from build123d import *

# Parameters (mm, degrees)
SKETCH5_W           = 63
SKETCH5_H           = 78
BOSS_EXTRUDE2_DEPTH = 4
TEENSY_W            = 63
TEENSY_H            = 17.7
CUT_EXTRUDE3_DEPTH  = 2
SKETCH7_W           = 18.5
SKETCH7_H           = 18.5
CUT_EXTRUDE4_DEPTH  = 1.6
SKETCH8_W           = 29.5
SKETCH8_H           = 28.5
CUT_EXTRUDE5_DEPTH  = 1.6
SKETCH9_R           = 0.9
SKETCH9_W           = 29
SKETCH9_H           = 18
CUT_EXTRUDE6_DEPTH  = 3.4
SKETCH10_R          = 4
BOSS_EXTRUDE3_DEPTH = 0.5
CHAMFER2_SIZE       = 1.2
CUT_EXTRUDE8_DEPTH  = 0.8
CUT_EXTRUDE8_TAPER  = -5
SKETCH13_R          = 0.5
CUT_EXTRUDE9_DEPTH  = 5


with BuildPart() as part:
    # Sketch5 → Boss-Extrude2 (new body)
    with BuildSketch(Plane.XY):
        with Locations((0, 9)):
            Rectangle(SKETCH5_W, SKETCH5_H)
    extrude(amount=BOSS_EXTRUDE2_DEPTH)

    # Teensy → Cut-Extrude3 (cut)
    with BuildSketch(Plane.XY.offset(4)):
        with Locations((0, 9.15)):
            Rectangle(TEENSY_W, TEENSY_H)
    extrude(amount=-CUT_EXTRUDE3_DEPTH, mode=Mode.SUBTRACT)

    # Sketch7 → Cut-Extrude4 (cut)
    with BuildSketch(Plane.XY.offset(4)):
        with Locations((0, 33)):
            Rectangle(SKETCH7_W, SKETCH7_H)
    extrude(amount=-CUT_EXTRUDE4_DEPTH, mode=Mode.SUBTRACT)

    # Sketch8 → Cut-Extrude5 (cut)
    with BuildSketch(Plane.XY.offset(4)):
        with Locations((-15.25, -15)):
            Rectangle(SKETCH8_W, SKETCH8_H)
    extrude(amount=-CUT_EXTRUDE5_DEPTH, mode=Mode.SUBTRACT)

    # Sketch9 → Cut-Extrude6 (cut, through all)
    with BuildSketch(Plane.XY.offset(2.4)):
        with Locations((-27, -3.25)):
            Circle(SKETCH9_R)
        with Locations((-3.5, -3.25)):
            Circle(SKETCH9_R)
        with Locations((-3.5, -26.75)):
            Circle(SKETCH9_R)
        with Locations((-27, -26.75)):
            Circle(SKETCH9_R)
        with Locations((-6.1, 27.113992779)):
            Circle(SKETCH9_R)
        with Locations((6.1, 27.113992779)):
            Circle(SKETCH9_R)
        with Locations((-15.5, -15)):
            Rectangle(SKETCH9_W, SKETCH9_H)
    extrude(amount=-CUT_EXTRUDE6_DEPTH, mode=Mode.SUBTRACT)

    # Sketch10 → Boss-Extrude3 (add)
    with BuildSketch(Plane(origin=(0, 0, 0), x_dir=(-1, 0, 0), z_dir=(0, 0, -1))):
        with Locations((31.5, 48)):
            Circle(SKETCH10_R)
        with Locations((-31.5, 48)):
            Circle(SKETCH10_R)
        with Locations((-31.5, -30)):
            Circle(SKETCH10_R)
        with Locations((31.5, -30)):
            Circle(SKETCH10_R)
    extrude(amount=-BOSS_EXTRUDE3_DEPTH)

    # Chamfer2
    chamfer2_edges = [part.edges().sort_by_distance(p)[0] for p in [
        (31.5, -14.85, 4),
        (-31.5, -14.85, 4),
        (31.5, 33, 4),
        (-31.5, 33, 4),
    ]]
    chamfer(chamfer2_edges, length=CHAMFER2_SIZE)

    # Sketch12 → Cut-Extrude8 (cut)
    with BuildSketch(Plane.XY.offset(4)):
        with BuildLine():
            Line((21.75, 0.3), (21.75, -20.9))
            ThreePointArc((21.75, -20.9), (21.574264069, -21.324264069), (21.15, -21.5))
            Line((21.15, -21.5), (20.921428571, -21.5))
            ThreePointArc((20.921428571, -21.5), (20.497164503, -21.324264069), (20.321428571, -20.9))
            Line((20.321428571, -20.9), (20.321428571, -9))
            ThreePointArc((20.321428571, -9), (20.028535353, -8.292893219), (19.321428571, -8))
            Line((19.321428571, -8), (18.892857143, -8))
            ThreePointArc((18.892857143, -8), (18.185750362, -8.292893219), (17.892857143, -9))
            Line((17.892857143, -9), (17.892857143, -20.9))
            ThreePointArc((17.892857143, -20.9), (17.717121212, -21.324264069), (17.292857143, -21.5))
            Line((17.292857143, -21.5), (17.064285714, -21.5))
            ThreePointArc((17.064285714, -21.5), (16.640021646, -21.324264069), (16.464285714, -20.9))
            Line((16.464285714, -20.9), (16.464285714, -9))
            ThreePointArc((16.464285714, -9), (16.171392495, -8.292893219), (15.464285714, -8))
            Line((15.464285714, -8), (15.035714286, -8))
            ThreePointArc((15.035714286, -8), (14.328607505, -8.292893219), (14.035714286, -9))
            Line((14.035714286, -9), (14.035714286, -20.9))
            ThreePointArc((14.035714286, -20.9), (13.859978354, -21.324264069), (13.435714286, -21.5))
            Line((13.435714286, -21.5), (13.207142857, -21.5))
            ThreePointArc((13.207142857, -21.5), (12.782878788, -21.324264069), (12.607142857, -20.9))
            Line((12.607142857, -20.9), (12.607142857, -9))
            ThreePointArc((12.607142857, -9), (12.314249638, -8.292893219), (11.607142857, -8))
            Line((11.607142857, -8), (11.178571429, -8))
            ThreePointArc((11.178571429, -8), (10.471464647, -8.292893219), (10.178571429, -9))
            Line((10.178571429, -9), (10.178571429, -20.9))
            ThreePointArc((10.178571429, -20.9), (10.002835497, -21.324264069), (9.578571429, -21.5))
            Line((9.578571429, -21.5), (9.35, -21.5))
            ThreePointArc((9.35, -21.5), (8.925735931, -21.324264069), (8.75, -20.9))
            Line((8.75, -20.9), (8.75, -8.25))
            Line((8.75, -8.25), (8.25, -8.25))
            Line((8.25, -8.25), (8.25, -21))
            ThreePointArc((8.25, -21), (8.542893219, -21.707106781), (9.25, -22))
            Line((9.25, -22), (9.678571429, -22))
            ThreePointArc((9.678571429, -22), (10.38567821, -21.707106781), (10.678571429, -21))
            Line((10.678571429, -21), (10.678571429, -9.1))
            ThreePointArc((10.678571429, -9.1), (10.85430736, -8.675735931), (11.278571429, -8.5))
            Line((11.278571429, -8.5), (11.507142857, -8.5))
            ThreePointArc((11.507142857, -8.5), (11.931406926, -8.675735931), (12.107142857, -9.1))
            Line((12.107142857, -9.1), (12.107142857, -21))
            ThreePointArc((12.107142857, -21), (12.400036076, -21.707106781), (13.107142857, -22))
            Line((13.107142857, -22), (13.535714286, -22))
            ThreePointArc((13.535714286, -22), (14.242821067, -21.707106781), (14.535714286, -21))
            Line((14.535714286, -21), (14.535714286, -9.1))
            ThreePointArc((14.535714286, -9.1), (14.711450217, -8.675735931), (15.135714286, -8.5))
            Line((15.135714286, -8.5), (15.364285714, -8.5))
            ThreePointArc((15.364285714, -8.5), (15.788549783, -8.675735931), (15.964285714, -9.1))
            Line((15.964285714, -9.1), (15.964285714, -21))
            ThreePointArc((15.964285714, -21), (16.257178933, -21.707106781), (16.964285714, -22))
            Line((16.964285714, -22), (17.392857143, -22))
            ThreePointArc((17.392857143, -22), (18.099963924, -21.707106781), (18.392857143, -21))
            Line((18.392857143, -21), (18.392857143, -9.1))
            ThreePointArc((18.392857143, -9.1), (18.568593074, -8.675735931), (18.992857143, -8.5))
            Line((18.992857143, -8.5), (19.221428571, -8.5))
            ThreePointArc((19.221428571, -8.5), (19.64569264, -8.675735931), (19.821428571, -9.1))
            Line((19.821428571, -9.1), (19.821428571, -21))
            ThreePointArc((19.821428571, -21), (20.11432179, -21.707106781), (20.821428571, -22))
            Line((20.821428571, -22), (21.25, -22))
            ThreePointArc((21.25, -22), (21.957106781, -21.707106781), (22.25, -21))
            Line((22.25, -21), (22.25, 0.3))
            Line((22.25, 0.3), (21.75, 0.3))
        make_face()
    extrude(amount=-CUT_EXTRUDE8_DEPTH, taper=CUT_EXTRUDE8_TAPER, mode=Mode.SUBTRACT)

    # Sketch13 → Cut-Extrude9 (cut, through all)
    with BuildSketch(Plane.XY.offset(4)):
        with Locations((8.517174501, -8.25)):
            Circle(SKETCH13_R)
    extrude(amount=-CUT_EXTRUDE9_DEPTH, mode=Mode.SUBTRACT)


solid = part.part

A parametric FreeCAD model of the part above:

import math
import FreeCAD as App
import Part
import Sketcher

V = App.Vector


def edges_at(feature, points):
    """Names of the edges that pass closest to the given points."""
    edges = feature.Shape.Edges
    near = lambda p: min(range(len(edges)), key=lambda i: edges[i].distToShape(Part.Vertex(*p))[0])
    return sorted({f"Edge{near(p) + 1}" for p in points})


def add_polygon(sketch, points):
    """Adds a closed chain of lines whose ends are joined by coincident constraints."""
    first, n = sketch.GeometryCount, len(points)
    for a, b in zip(points, points[1:] + points[:1]):
        sketch.addGeometry(Part.LineSegment(App.Vector(*a, 0), App.Vector(*b, 0)), False)
    for i in range(n):
        sketch.addConstraint(Sketcher.Constraint("Coincident", first + i, 2, first + (i + 1) % n, 1))

doc = App.newDocument("Part")
body = doc.addObject("PartDesign::Body", "Body")

# Sketch on XY plane
sketch1 = body.newObject("Sketcher::SketchObject", "Sketch")
sketch1.AttachmentSupport = (doc.getObject("XY_Plane"), [""])
sketch1.MapMode = "FlatFace"
add_polygon(sketch1, [(-32, 48), (-32, -30), (32, -30), (32, 48)])  # lines 0-3
sketch1.addConstraint(Sketcher.Constraint("Vertical", 0))
sketch1.addConstraint(Sketcher.Constraint("Horizontal", 1))
sketch1.addConstraint(Sketcher.Constraint("Vertical", 2))
sketch1.addConstraint(Sketcher.Constraint("Horizontal", 3))
sketch1.addConstraint(Sketcher.Constraint("DistanceX", 1, 1, 1, 2, 63.0))
sketch1.addConstraint(Sketcher.Constraint("DistanceY", 0, 2, 0, 1, 78.0))
sketch1.addConstraint(Sketcher.Constraint("DistanceY", 0, 2, -1, 1, 30.0))
sketch1.addConstraint(Sketcher.Constraint("DistanceX", 0, 2, -1, 1, 31.5))
pad1 = body.newObject("PartDesign::Pad", "Pad")
pad1.Profile = sketch1
pad1.Length = 4

# Sketch on XY plane
sketch2 = body.newObject("Sketcher::SketchObject", "Sketch001")
sketch2.AttachmentSupport = (doc.getObject("XY_Plane"), [""])
sketch2.MapMode = "FlatFace"
sketch2.AttachmentOffset = App.Placement(V(0, 0, 4), App.Rotation())
add_polygon(sketch2, [(-32, 18), (-32, 0), (32, 0), (32, 18)])  # lines 0-3
sketch2.addConstraint(Sketcher.Constraint("Vertical", 0))
sketch2.addConstraint(Sketcher.Constraint("Horizontal", 1))
sketch2.addConstraint(Sketcher.Constraint("Vertical", 2))
sketch2.addConstraint(Sketcher.Constraint("Horizontal", 3))
sketch2.addConstraint(Sketcher.Constraint("DistanceX", 1, 1, 1, 2, 63.0))
sketch2.addConstraint(Sketcher.Constraint("DistanceY", 0, 2, 0, 1, 17.7))
sketch2.addConstraint(Sketcher.Constraint("DistanceY", -1, 1, 2, 2, 18.0))
sketch2.addConstraint(Sketcher.Constraint("DistanceX", 0, 2, -1, 1, 31.5))
pocket1 = body.newObject("PartDesign::Pocket", "Pocket")
pocket1.Profile = sketch2
pocket1.Length = 2

# Sketch on XY plane
sketch3 = body.newObject("Sketcher::SketchObject", "Sketch002")
sketch3.AttachmentSupport = (doc.getObject("XY_Plane"), [""])
sketch3.MapMode = "FlatFace"
sketch3.AttachmentOffset = App.Placement(V(0, 0, 4), App.Rotation())
add_polygon(sketch3, [(-9, 42), (-9, 24), (9, 24), (9, 42)])  # lines 0-3
sketch3.addConstraint(Sketcher.Constraint("Vertical", 0))
sketch3.addConstraint(Sketcher.Constraint("Horizontal", 1))
sketch3.addConstraint(Sketcher.Constraint("Vertical", 2))
sketch3.addConstraint(Sketcher.Constraint("Horizontal", 3))
sketch3.addConstraint(Sketcher.Constraint("Equal", 3, 0))
sketch3.addConstraint(Sketcher.Constraint("DistanceX", 1, 1, 1, 2, 18.5))
sketch3.addConstraint(Sketcher.Constraint("DistanceX", 0, 2, -1, 1, 9.25))
sketch3.addConstraint(Sketcher.Constraint("DistanceY", -1, 1, 0, 2, 23.75))
pocket2 = body.newObject("PartDesign::Pocket", "Pocket001")
pocket2.Profile = sketch3
pocket2.Length = 1.6

# Sketch on XY plane
sketch4 = body.newObject("Sketcher::SketchObject", "Sketch003")
sketch4.AttachmentSupport = (doc.getObject("XY_Plane"), [""])
sketch4.MapMode = "FlatFace"
sketch4.AttachmentOffset = App.Placement(V(0, 0, 4), App.Rotation())
add_polygon(sketch4, [(-30, -1), (-30, -29), (0, -29), (0, -1)])  # lines 0-3
sketch4.addConstraint(Sketcher.Constraint("Vertical", 0))
sketch4.addConstraint(Sketcher.Constraint("Horizontal", 1))
sketch4.addConstraint(Sketcher.Constraint("Vertical", 2))
sketch4.addConstraint(Sketcher.Constraint("Horizontal", 3))
sketch4.addConstraint(Sketcher.Constraint("DistanceX", 1, 1, 1, 2, 29.5))
sketch4.addConstraint(Sketcher.Constraint("DistanceY", 0, 2, 0, 1, 28.5))
sketch4.addConstraint(Sketcher.Constraint("DistanceX", 0, 2, -1, 1, 30.0))
sketch4.addConstraint(Sketcher.Constraint("DistanceY", 0, 2, -1, 1, 29.25))
pocket3 = body.newObject("PartDesign::Pocket", "Pocket002")
pocket3.Profile = sketch4
pocket3.Length = 1.6

# Sketch on XY plane
sketch5 = body.newObject("Sketcher::SketchObject", "Sketch004")
sketch5.AttachmentSupport = (doc.getObject("XY_Plane"), [""])
sketch5.MapMode = "FlatFace"
sketch5.AttachmentOffset = App.Placement(V(0, 0, 2.4), App.Rotation())
sketch5.addGeometry(Part.Circle(V(-27, -3.2, 0), V(0, 0, 1), 0.9), False)  # 0
sketch5.addGeometry(Part.Circle(V(-3.5, -3.2, 0), V(0, 0, 1), 0.9), False)  # 1
sketch5.addGeometry(Part.Circle(V(-3.5, -26.8, 0), V(0, 0, 1), 0.9), False)  # 2
sketch5.addGeometry(Part.Circle(V(-27, -26.8, 0), V(0, 0, 1), 0.9), False)  # 3
sketch5.addGeometry(Part.Circle(V(-6.1, 27.1, 0), V(0, 0, 1), 0.9), False)  # 4
sketch5.addGeometry(Part.Circle(V(6.1, 27.1, 0), V(0, 0, 1), 0.9), False)  # 5
add_polygon(sketch5, [(-30, -6), (-30, -24), (-1, -24), (-1, -6)])  # lines 6-9
sketch5.addConstraint(Sketcher.Constraint("Vertical", 6))
sketch5.addConstraint(Sketcher.Constraint("Horizontal", 7))
sketch5.addConstraint(Sketcher.Constraint("Vertical", 8))
sketch5.addConstraint(Sketcher.Constraint("Horizontal", 9))
sketch5.addConstraint(Sketcher.Constraint("Equal", 0, 1))
sketch5.addConstraint(Sketcher.Constraint("Equal", 1, 2))
sketch5.addConstraint(Sketcher.Constraint("Equal", 2, 3))
sketch5.addConstraint(Sketcher.Constraint("Equal", 3, 4))
sketch5.addConstraint(Sketcher.Constraint("Equal", 4, 5))
sketch5.addConstraint(Sketcher.Constraint("Symmetric", 4, 3, 5, 3, -2))
sketch5.addConstraint(Sketcher.Constraint("Horizontal", 0, 3, 1, 3))
sketch5.addConstraint(Sketcher.Constraint("Horizontal", 2, 3, 3, 3))
sketch5.addConstraint(Sketcher.Constraint("Vertical", 1, 3, 2, 3))
sketch5.addConstraint(Sketcher.Constraint("Vertical", 0, 3, 3, 3))
sketch5.addConstraint(Sketcher.Constraint("Diameter", 0, 1.8))
sketch5.addConstraint(Sketcher.Constraint("DistanceX", 7, 1, 7, 2, 29.0))
sketch5.addConstraint(Sketcher.Constraint("DistanceY", 6, 2, 6, 1, 18.0))
sketch5.addConstraint(Sketcher.Constraint("DistanceX", 0, 3, -1, 1, 27.0))
sketch5.addConstraint(Sketcher.Constraint("DistanceX", 6, 2, -1, 1, 30.0))
sketch5.addConstraint(Sketcher.Constraint("DistanceY", 6, 2, -1, 1, 24.0))
sketch5.addConstraint(Sketcher.Constraint("DistanceX", 1, 3, -1, 1, 3.5))
sketch5.addConstraint(Sketcher.Constraint("DistanceX", 4, 3, -1, 1, 6.1))
sketch5.addConstraint(Sketcher.Constraint("DistanceY", 2, 3, 1, 3, 23.5))
sketch5.addConstraint(Sketcher.Constraint("DistanceY", 0, 3, -1, 1, 3.25))
sketch5.addConstraint(Sketcher.Constraint("DistanceY", -1, 1, 4, 3, 27.113993))
pocket4 = body.newObject("PartDesign::Pocket", "Pocket003")
pocket4.Profile = sketch5
pocket4.Type = "ThroughAll"

# Sketch on XY plane
sketch6 = body.newObject("Sketcher::SketchObject", "Sketch005")
sketch6.AttachmentSupport = (doc.getObject("XY_Plane"), [""])
sketch6.MapMode = "FlatFace"
sketch6.addGeometry(Part.Circle(V(-31.5, 48, 0), V(0, 0, 1), 4), False)
sketch6.addGeometry(Part.Circle(V(31.5, 48, 0), V(0, 0, 1), 4), False)
sketch6.addGeometry(Part.Circle(V(31.5, -30, 0), V(0, 0, 1), 4), False)
sketch6.addGeometry(Part.Circle(V(-31.5, -30, 0), V(0, 0, 1), 4), False)
sketch6.addConstraint(Sketcher.Constraint("Equal", 0, 1))
sketch6.addConstraint(Sketcher.Constraint("Equal", 1, 2))
sketch6.addConstraint(Sketcher.Constraint("Equal", 2, 3))
sketch6.addConstraint(Sketcher.Constraint("Symmetric", 0, 3, 1, 3, -2))
sketch6.addConstraint(Sketcher.Constraint("Symmetric", 2, 3, 3, 3, -2))
sketch6.addConstraint(Sketcher.Constraint("Vertical", 1, 3, 2, 3))
sketch6.addConstraint(Sketcher.Constraint("Diameter", 0, 8.0))
sketch6.addConstraint(Sketcher.Constraint("DistanceY", -1, 1, 0, 3, 48.0))
sketch6.addConstraint(Sketcher.Constraint("DistanceY", 2, 3, -1, 1, 30.0))
sketch6.addConstraint(Sketcher.Constraint("DistanceX", 0, 3, 1, 3, 63.0))
pad2 = body.newObject("PartDesign::Pad", "Pad001")
pad2.Profile = sketch6
pad2.Length = 0.5
doc.recompute()

chamfer = body.newObject("PartDesign::Chamfer", "Chamfer")
chamfer.Base = (pad2, edges_at(pad2, [
    (31.5, -14.85, 4),
    (-31.5, -14.85, 4),
    (31.5, 33, 4),
    (-31.5, 33, 4),
]))
chamfer.Size = 1.2

# Sketch on XY plane
sketch7 = body.newObject("Sketcher::SketchObject", "Sketch006")
sketch7.AttachmentSupport = (doc.getObject("XY_Plane"), [""])
sketch7.MapMode = "FlatFace"
sketch7.AttachmentOffset = App.Placement(V(0, 0, 4), App.Rotation())
sketch7.addGeometry(Part.LineSegment(V(21.75, 0.3, 0), V(21.75, -20.9, 0)), False)
sketch7.addGeometry(Part.ArcOfCircle(Part.Circle(V(21.15, -20.9, 0), V(0, 0, 1), 0.6), math.radians(-90), math.radians(0)), False)
sketch7.addGeometry(Part.LineSegment(V(21.15, -21.5, 0), V(20.92, -21.5, 0)), False)
sketch7.addGeometry(Part.ArcOfCircle(Part.Circle(V(20.92, -20.9, 0), V(0, 0, 1), 0.6), math.radians(-180), math.radians(-90)), False)
sketch7.addGeometry(Part.LineSegment(V(20.32, -20.9, 0), V(20.32, -9, 0)), False)
sketch7.addGeometry(Part.ArcOfCircle(Part.Circle(V(19.32, -9, 0), V(0, 0, 1), 1), math.radians(0), math.radians(90)), False)
sketch7.addGeometry(Part.LineSegment(V(19.32, -8, 0), V(18.89, -8, 0)), False)
sketch7.addGeometry(Part.ArcOfCircle(Part.Circle(V(18.89, -9, 0), V(0, 0, 1), 1), math.radians(90), math.radians(180)), False)
sketch7.addGeometry(Part.LineSegment(V(17.89, -9, 0), V(17.89, -20.9, 0)), False)
sketch7.addGeometry(Part.ArcOfCircle(Part.Circle(V(17.29, -20.9, 0), V(0, 0, 1), 0.6), math.radians(-90), math.radians(0)), False)
sketch7.addGeometry(Part.LineSegment(V(17.29, -21.5, 0), V(17.06, -21.5, 0)), False)
sketch7.addGeometry(Part.ArcOfCircle(Part.Circle(V(17.06, -20.9, 0), V(0, 0, 1), 0.6), math.radians(-180), math.radians(-90)), False)
sketch7.addGeometry(Part.LineSegment(V(16.46, -20.9, 0), V(16.46, -9, 0)), False)
sketch7.addGeometry(Part.ArcOfCircle(Part.Circle(V(15.46, -9, 0), V(0, 0, 1), 1), math.radians(0), math.radians(90)), False)
sketch7.addGeometry(Part.LineSegment(V(15.46, -8, 0), V(15.04, -8, 0)), False)
sketch7.addGeometry(Part.ArcOfCircle(Part.Circle(V(15.04, -9, 0), V(0, 0, 1), 1), math.radians(90), math.radians(180)), False)
sketch7.addGeometry(Part.LineSegment(V(14.04, -9, 0), V(14.04, -20.9, 0)), False)
sketch7.addGeometry(Part.ArcOfCircle(Part.Circle(V(13.44, -20.9, 0), V(0, 0, 1), 0.6), math.radians(-90), math.radians(0)), False)
sketch7.addGeometry(Part.LineSegment(V(13.44, -21.5, 0), V(13.21, -21.5, 0)), False)
sketch7.addGeometry(Part.ArcOfCircle(Part.Circle(V(13.21, -20.9, 0), V(0, 0, 1), 0.6), math.radians(180), math.radians(270)), False)
sketch7.addGeometry(Part.LineSegment(V(12.61, -20.9, 0), V(12.61, -9, 0)), False)
sketch7.addGeometry(Part.ArcOfCircle(Part.Circle(V(11.61, -9, 0), V(0, 0, 1), 1), math.radians(0), math.radians(90)), False)
sketch7.addGeometry(Part.LineSegment(V(11.61, -8, 0), V(11.18, -8, 0)), False)
sketch7.addGeometry(Part.ArcOfCircle(Part.Circle(V(11.18, -9, 0), V(0, 0, 1), 1), math.radians(90), math.radians(180)), False)
sketch7.addGeometry(Part.LineSegment(V(10.18, -9, 0), V(10.18, -20.9, 0)), False)
sketch7.addGeometry(Part.ArcOfCircle(Part.Circle(V(9.58, -20.9, 0), V(0, 0, 1), 0.6), math.radians(-90), math.radians(0)), False)
sketch7.addGeometry(Part.LineSegment(V(9.58, -21.5, 0), V(9.35, -21.5, 0)), False)
sketch7.addGeometry(Part.ArcOfCircle(Part.Circle(V(9.35, -20.9, 0), V(0, 0, 1), 0.6), math.radians(180), math.radians(270)), False)
sketch7.addGeometry(Part.LineSegment(V(8.75, -20.9, 0), V(8.75, -8.25, 0)), False)
sketch7.addGeometry(Part.LineSegment(V(8.75, -8.25, 0), V(8.25, -8.25, 0)), False)
sketch7.addGeometry(Part.LineSegment(V(8.25, -8.25, 0), V(8.25, -21, 0)), False)
sketch7.addGeometry(Part.ArcOfCircle(Part.Circle(V(9.25, -21, 0), V(0, 0, 1), 1), math.radians(-180), math.radians(-90)), False)
sketch7.addGeometry(Part.LineSegment(V(9.25, -22, 0), V(9.68, -22, 0)), False)
sketch7.addGeometry(Part.ArcOfCircle(Part.Circle(V(9.68, -21, 0), V(0, 0, 1), 1), math.radians(-90), math.radians(0)), False)
sketch7.addGeometry(Part.LineSegment(V(10.68, -21, 0), V(10.68, -9.1, 0)), False)
sketch7.addGeometry(Part.ArcOfCircle(Part.Circle(V(11.28, -9.1, 0), V(0, 0, 1), 0.6), math.radians(90), math.radians(180)), False)
sketch7.addGeometry(Part.LineSegment(V(11.28, -8.5, 0), V(11.51, -8.5, 0)), False)
sketch7.addGeometry(Part.ArcOfCircle(Part.Circle(V(11.51, -9.1, 0), V(0, 0, 1), 0.6), math.radians(0), math.radians(90)), False)
sketch7.addGeometry(Part.LineSegment(V(12.11, -9.1, 0), V(12.11, -21, 0)), False)
sketch7.addGeometry(Part.ArcOfCircle(Part.Circle(V(13.11, -21, 0), V(0, 0, 1), 1), math.radians(-180), math.radians(-90)), False)
sketch7.addGeometry(Part.LineSegment(V(13.11, -22, 0), V(13.54, -22, 0)), False)
sketch7.addGeometry(Part.ArcOfCircle(Part.Circle(V(13.54, -21, 0), V(0, 0, 1), 1), math.radians(-90), math.radians(0)), False)
sketch7.addGeometry(Part.LineSegment(V(14.54, -21, 0), V(14.54, -9.1, 0)), False)
sketch7.addGeometry(Part.ArcOfCircle(Part.Circle(V(15.14, -9.1, 0), V(0, 0, 1), 0.6), math.radians(90), math.radians(180)), False)
sketch7.addGeometry(Part.LineSegment(V(15.14, -8.5, 0), V(15.36, -8.5, 0)), False)
sketch7.addGeometry(Part.ArcOfCircle(Part.Circle(V(15.36, -9.1, 0), V(0, 0, 1), 0.6), math.radians(0), math.radians(90)), False)
sketch7.addGeometry(Part.LineSegment(V(15.96, -9.1, 0), V(15.96, -21, 0)), False)
sketch7.addGeometry(Part.ArcOfCircle(Part.Circle(V(16.96, -21, 0), V(0, 0, 1), 1), math.radians(-180), math.radians(-90)), False)
sketch7.addGeometry(Part.LineSegment(V(16.96, -22, 0), V(17.39, -22, 0)), False)
sketch7.addGeometry(Part.ArcOfCircle(Part.Circle(V(17.39, -21, 0), V(0, 0, 1), 1), math.radians(-90), math.radians(0)), False)
sketch7.addGeometry(Part.LineSegment(V(18.39, -21, 0), V(18.39, -9.1, 0)), False)
sketch7.addGeometry(Part.ArcOfCircle(Part.Circle(V(18.99, -9.1, 0), V(0, 0, 1), 0.6), math.radians(90), math.radians(180)), False)
sketch7.addGeometry(Part.LineSegment(V(18.99, -8.5, 0), V(19.22, -8.5, 0)), False)
sketch7.addGeometry(Part.ArcOfCircle(Part.Circle(V(19.22, -9.1, 0), V(0, 0, 1), 0.6), math.radians(0), math.radians(90)), False)
sketch7.addGeometry(Part.LineSegment(V(19.82, -9.1, 0), V(19.82, -21, 0)), False)
sketch7.addGeometry(Part.ArcOfCircle(Part.Circle(V(20.82, -21, 0), V(0, 0, 1), 1), math.radians(-180), math.radians(-90)), False)
sketch7.addGeometry(Part.LineSegment(V(20.82, -22, 0), V(21.25, -22, 0)), False)
sketch7.addGeometry(Part.ArcOfCircle(Part.Circle(V(21.25, -21, 0), V(0, 0, 1), 1), math.radians(-90), math.radians(0)), False)
sketch7.addGeometry(Part.LineSegment(V(22.25, -21, 0), V(22.25, 0.3, 0)), False)
sketch7.addGeometry(Part.LineSegment(V(22.25, 0.3, 0), V(21.75, 0.3, 0)), False)
sketch7.addConstraint(Sketcher.Constraint("Tangent", 0, 2, 1, 2))
sketch7.addConstraint(Sketcher.Constraint("Tangent", 1, 1, 2, 1))
sketch7.addConstraint(Sketcher.Constraint("Tangent", 2, 2, 3, 2))
sketch7.addConstraint(Sketcher.Constraint("Tangent", 3, 1, 4, 1))
sketch7.addConstraint(Sketcher.Constraint("Tangent", 4, 2, 5, 1))
sketch7.addConstraint(Sketcher.Constraint("Tangent", 5, 2, 6, 1))
sketch7.addConstraint(Sketcher.Constraint("Tangent", 6, 2, 7, 1))
sketch7.addConstraint(Sketcher.Constraint("Tangent", 7, 2, 8, 1))
sketch7.addConstraint(Sketcher.Constraint("Tangent", 8, 2, 9, 2))
sketch7.addConstraint(Sketcher.Constraint("Tangent", 9, 1, 10, 1))
sketch7.addConstraint(Sketcher.Constraint("Tangent", 10, 2, 11, 2))
sketch7.addConstraint(Sketcher.Constraint("Tangent", 11, 1, 12, 1))
sketch7.addConstraint(Sketcher.Constraint("Tangent", 12, 2, 13, 1))
sketch7.addConstraint(Sketcher.Constraint("Tangent", 13, 2, 14, 1))
sketch7.addConstraint(Sketcher.Constraint("Tangent", 14, 2, 15, 1))
sketch7.addConstraint(Sketcher.Constraint("Tangent", 15, 2, 16, 1))
sketch7.addConstraint(Sketcher.Constraint("Tangent", 16, 2, 17, 2))
sketch7.addConstraint(Sketcher.Constraint("Tangent", 17, 1, 18, 1))
sketch7.addConstraint(Sketcher.Constraint("Tangent", 18, 2, 19, 2))
sketch7.addConstraint(Sketcher.Constraint("Tangent", 19, 1, 20, 1))
sketch7.addConstraint(Sketcher.Constraint("Tangent", 20, 2, 21, 1))
sketch7.addConstraint(Sketcher.Constraint("Tangent", 21, 2, 22, 1))
sketch7.addConstraint(Sketcher.Constraint("Tangent", 22, 2, 23, 1))
sketch7.addConstraint(Sketcher.Constraint("Tangent", 23, 2, 24, 1))
sketch7.addConstraint(Sketcher.Constraint("Tangent", 24, 2, 25, 2))
sketch7.addConstraint(Sketcher.Constraint("Tangent", 25, 1, 26, 1))
sketch7.addConstraint(Sketcher.Constraint("Tangent", 26, 2, 27, 2))
sketch7.addConstraint(Sketcher.Constraint("Tangent", 27, 1, 28, 1))
sketch7.addConstraint(Sketcher.Constraint("Coincident", 28, 2, 29, 1))
sketch7.addConstraint(Sketcher.Constraint("Coincident", 29, 2, 30, 1))
sketch7.addConstraint(Sketcher.Constraint("Tangent", 30, 2, 31, 1))
sketch7.addConstraint(Sketcher.Constraint("Tangent", 31, 2, 32, 1))
sketch7.addConstraint(Sketcher.Constraint("Tangent", 32, 2, 33, 1))
sketch7.addConstraint(Sketcher.Constraint("Tangent", 33, 2, 34, 1))
sketch7.addConstraint(Sketcher.Constraint("Tangent", 34, 2, 35, 2))
sketch7.addConstraint(Sketcher.Constraint("Tangent", 35, 1, 36, 1))
sketch7.addConstraint(Sketcher.Constraint("Tangent", 36, 2, 37, 2))
sketch7.addConstraint(Sketcher.Constraint("Tangent", 37, 1, 38, 1))
sketch7.addConstraint(Sketcher.Constraint("Tangent", 38, 2, 39, 1))
sketch7.addConstraint(Sketcher.Constraint("Tangent", 39, 2, 40, 1))
sketch7.addConstraint(Sketcher.Constraint("Tangent", 40, 2, 41, 1))
sketch7.addConstraint(Sketcher.Constraint("Tangent", 41, 2, 42, 1))
sketch7.addConstraint(Sketcher.Constraint("Tangent", 42, 2, 43, 2))
sketch7.addConstraint(Sketcher.Constraint("Tangent", 43, 1, 44, 1))
sketch7.addConstraint(Sketcher.Constraint("Tangent", 44, 2, 45, 2))
sketch7.addConstraint(Sketcher.Constraint("Tangent", 45, 1, 46, 1))
sketch7.addConstraint(Sketcher.Constraint("Tangent", 46, 2, 47, 1))
sketch7.addConstraint(Sketcher.Constraint("Tangent", 47, 2, 48, 1))
sketch7.addConstraint(Sketcher.Constraint("Tangent", 48, 2, 49, 1))
sketch7.addConstraint(Sketcher.Constraint("Tangent", 49, 2, 50, 1))
sketch7.addConstraint(Sketcher.Constraint("Tangent", 50, 2, 51, 2))
sketch7.addConstraint(Sketcher.Constraint("Tangent", 51, 1, 52, 1))
sketch7.addConstraint(Sketcher.Constraint("Tangent", 52, 2, 53, 2))
sketch7.addConstraint(Sketcher.Constraint("Tangent", 53, 1, 54, 1))
sketch7.addConstraint(Sketcher.Constraint("Tangent", 54, 2, 55, 1))
sketch7.addConstraint(Sketcher.Constraint("Tangent", 55, 2, 56, 1))
sketch7.addConstraint(Sketcher.Constraint("Tangent", 56, 2, 57, 1))
sketch7.addConstraint(Sketcher.Constraint("Tangent", 57, 2, 58, 1))
sketch7.addConstraint(Sketcher.Constraint("Coincident", 58, 2, 59, 1))
sketch7.addConstraint(Sketcher.Constraint("Coincident", 59, 2, 0, 1))
sketch7.addConstraint(Sketcher.Constraint("Vertical", 0))
sketch7.addConstraint(Sketcher.Constraint("Horizontal", 2))
sketch7.addConstraint(Sketcher.Constraint("Vertical", 4))
sketch7.addConstraint(Sketcher.Constraint("Horizontal", 6))
sketch7.addConstraint(Sketcher.Constraint("Vertical", 8))
sketch7.addConstraint(Sketcher.Constraint("Horizontal", 10))
sketch7.addConstraint(Sketcher.Constraint("Vertical", 12))
sketch7.addConstraint(Sketcher.Constraint("Horizontal", 14))
sketch7.addConstraint(Sketcher.Constraint("Vertical", 16))
sketch7.addConstraint(Sketcher.Constraint("Horizontal", 18))
sketch7.addConstraint(Sketcher.Constraint("Vertical", 20))
sketch7.addConstraint(Sketcher.Constraint("Horizontal", 22))
sketch7.addConstraint(Sketcher.Constraint("Vertical", 24))
sketch7.addConstraint(Sketcher.Constraint("Horizontal", 26))
sketch7.addConstraint(Sketcher.Constraint("Vertical", 28))
sketch7.addConstraint(Sketcher.Constraint("Horizontal", 29))
sketch7.addConstraint(Sketcher.Constraint("Vertical", 30))
sketch7.addConstraint(Sketcher.Constraint("Horizontal", 32))
sketch7.addConstraint(Sketcher.Constraint("Vertical", 34))
sketch7.addConstraint(Sketcher.Constraint("Horizontal", 36))
sketch7.addConstraint(Sketcher.Constraint("Vertical", 38))
sketch7.addConstraint(Sketcher.Constraint("Horizontal", 40))
sketch7.addConstraint(Sketcher.Constraint("Vertical", 42))
sketch7.addConstraint(Sketcher.Constraint("Horizontal", 44))
sketch7.addConstraint(Sketcher.Constraint("Vertical", 46))
sketch7.addConstraint(Sketcher.Constraint("Horizontal", 48))
sketch7.addConstraint(Sketcher.Constraint("Vertical", 50))
sketch7.addConstraint(Sketcher.Constraint("Horizontal", 52))
sketch7.addConstraint(Sketcher.Constraint("Vertical", 54))
sketch7.addConstraint(Sketcher.Constraint("Horizontal", 56))
sketch7.addConstraint(Sketcher.Constraint("Vertical", 58))
sketch7.addConstraint(Sketcher.Constraint("Horizontal", 59))
sketch7.addConstraint(Sketcher.Constraint("Equal", 1, 3))
sketch7.addConstraint(Sketcher.Constraint("Equal", 5, 7))
sketch7.addConstraint(Sketcher.Constraint("Equal", 3, 9))
sketch7.addConstraint(Sketcher.Constraint("Equal", 9, 11))
sketch7.addConstraint(Sketcher.Constraint("Equal", 7, 13))
sketch7.addConstraint(Sketcher.Constraint("Equal", 13, 15))
sketch7.addConstraint(Sketcher.Constraint("Equal", 11, 17))
sketch7.addConstraint(Sketcher.Constraint("Equal", 17, 19))
sketch7.addConstraint(Sketcher.Constraint("Equal", 15, 21))
sketch7.addConstraint(Sketcher.Constraint("Equal", 21, 23))
sketch7.addConstraint(Sketcher.Constraint("Equal", 19, 25))
sketch7.addConstraint(Sketcher.Constraint("Equal", 25, 27))
sketch7.addConstraint(Sketcher.Constraint("Equal", 23, 31))
sketch7.addConstraint(Sketcher.Constraint("Equal", 31, 33))
sketch7.addConstraint(Sketcher.Constraint("Equal", 27, 35))
sketch7.addConstraint(Sketcher.Constraint("Equal", 35, 37))
sketch7.addConstraint(Sketcher.Constraint("Equal", 33, 39))
sketch7.addConstraint(Sketcher.Constraint("Equal", 39, 41))
sketch7.addConstraint(Sketcher.Constraint("Equal", 37, 43))
sketch7.addConstraint(Sketcher.Constraint("Equal", 43, 45))
sketch7.addConstraint(Sketcher.Constraint("Equal", 41, 47))
sketch7.addConstraint(Sketcher.Constraint("Equal", 47, 49))
sketch7.addConstraint(Sketcher.Constraint("Equal", 45, 51))
sketch7.addConstraint(Sketcher.Constraint("Equal", 51, 53))
sketch7.addConstraint(Sketcher.Constraint("Equal", 49, 55))
sketch7.addConstraint(Sketcher.Constraint("Equal", 55, 57))
sketch7.addConstraint(Sketcher.Constraint("Horizontal", 3, 3, 9, 3))
sketch7.addConstraint(Sketcher.Constraint("Horizontal", 7, 3, 13, 3))
sketch7.addConstraint(Sketcher.Constraint("Horizontal", 11, 3, 17, 3))
sketch7.addConstraint(Sketcher.Constraint("Horizontal", 15, 3, 21, 3))
sketch7.addConstraint(Sketcher.Constraint("Horizontal", 19, 3, 25, 3))
sketch7.addConstraint(Sketcher.Constraint("Horizontal", 33, 3, 39, 3))
sketch7.addConstraint(Sketcher.Constraint("Horizontal", 37, 3, 43, 3))
sketch7.addConstraint(Sketcher.Constraint("Horizontal", 41, 3, 47, 3))
sketch7.addConstraint(Sketcher.Constraint("Horizontal", 45, 3, 51, 3))
sketch7.addConstraint(Sketcher.Constraint("Horizontal", 49, 3, 55, 3))
sketch7.addConstraint(Sketcher.Constraint("Equal", 2, 10))
sketch7.addConstraint(Sketcher.Constraint("Equal", 6, 14))
sketch7.addConstraint(Sketcher.Constraint("Equal", 10, 18))
sketch7.addConstraint(Sketcher.Constraint("Equal", 14, 22))
sketch7.addConstraint(Sketcher.Constraint("Equal", 18, 26))
sketch7.addConstraint(Sketcher.Constraint("Equal", 22, 32))
sketch7.addConstraint(Sketcher.Constraint("Equal", 26, 36))
sketch7.addConstraint(Sketcher.Constraint("Equal", 32, 40))
sketch7.addConstraint(Sketcher.Constraint("Equal", 36, 44))
sketch7.addConstraint(Sketcher.Constraint("Equal", 40, 48))
sketch7.addConstraint(Sketcher.Constraint("Equal", 44, 52))
sketch7.addConstraint(Sketcher.Constraint("Equal", 48, 56))
sketch7.addConstraint(Sketcher.Constraint("Equal", 29, 59))
sketch7.addConstraint(Sketcher.Constraint("Equal", 24, 34))
sketch7.addConstraint(Sketcher.Constraint("Radius", 5, 1.0))
sketch7.addConstraint(Sketcher.Constraint("Radius", 1, 0.6))
sketch7.addConstraint(Sketcher.Constraint("DistanceX", 29, 2, 29, 1, 0.5))
sketch7.addConstraint(Sketcher.Constraint("DistanceY", 0, 2, 0, 1, 21.2))
sketch7.addConstraint(Sketcher.Constraint("DistanceY", 4, 1, 4, 2, 11.9))
sketch7.addConstraint(Sketcher.Constraint("DistanceY", 58, 1, 58, 2, 21.3))
sketch7.addConstraint(Sketcher.Constraint("DistanceY", 5, 3, -1, 1, 9.0))
sketch7.addConstraint(Sketcher.Constraint("DistanceY", 28, 1, 28, 2, 12.65))
sketch7.addConstraint(Sketcher.Constraint("DistanceX", -1, 1, 1, 3, 21.15))
sketch7.addConstraint(Sketcher.Constraint("DistanceX", -1, 1, 27, 3, 9.35))
pocket5 = body.newObject("PartDesign::Pocket", "Pocket004")
pocket5.Profile = sketch7
pocket5.Length = 0.8
pocket5.TaperAngle = 5

# Sketch on XY plane
sketch8 = body.newObject("Sketcher::SketchObject", "Sketch007")
sketch8.AttachmentSupport = (doc.getObject("XY_Plane"), [""])
sketch8.MapMode = "FlatFace"
sketch8.AttachmentOffset = App.Placement(V(0, 0, 4), App.Rotation())
sketch8.addGeometry(Part.Circle(V(8.5, -8.2, 0), V(0, 0, 1), 0.5), False)
sketch8.addConstraint(Sketcher.Constraint("Diameter", 0, 1.0))
sketch8.addConstraint(Sketcher.Constraint("DistanceY", 0, 3, -1, 1, 8.25))
sketch8.addConstraint(Sketcher.Constraint("DistanceX", -1, 1, 0, 3, 8.517175))
pocket6 = body.newObject("PartDesign::Pocket", "Pocket005")
pocket6.Profile = sketch8
pocket6.Type = "ThroughAll"

doc.recompute()
